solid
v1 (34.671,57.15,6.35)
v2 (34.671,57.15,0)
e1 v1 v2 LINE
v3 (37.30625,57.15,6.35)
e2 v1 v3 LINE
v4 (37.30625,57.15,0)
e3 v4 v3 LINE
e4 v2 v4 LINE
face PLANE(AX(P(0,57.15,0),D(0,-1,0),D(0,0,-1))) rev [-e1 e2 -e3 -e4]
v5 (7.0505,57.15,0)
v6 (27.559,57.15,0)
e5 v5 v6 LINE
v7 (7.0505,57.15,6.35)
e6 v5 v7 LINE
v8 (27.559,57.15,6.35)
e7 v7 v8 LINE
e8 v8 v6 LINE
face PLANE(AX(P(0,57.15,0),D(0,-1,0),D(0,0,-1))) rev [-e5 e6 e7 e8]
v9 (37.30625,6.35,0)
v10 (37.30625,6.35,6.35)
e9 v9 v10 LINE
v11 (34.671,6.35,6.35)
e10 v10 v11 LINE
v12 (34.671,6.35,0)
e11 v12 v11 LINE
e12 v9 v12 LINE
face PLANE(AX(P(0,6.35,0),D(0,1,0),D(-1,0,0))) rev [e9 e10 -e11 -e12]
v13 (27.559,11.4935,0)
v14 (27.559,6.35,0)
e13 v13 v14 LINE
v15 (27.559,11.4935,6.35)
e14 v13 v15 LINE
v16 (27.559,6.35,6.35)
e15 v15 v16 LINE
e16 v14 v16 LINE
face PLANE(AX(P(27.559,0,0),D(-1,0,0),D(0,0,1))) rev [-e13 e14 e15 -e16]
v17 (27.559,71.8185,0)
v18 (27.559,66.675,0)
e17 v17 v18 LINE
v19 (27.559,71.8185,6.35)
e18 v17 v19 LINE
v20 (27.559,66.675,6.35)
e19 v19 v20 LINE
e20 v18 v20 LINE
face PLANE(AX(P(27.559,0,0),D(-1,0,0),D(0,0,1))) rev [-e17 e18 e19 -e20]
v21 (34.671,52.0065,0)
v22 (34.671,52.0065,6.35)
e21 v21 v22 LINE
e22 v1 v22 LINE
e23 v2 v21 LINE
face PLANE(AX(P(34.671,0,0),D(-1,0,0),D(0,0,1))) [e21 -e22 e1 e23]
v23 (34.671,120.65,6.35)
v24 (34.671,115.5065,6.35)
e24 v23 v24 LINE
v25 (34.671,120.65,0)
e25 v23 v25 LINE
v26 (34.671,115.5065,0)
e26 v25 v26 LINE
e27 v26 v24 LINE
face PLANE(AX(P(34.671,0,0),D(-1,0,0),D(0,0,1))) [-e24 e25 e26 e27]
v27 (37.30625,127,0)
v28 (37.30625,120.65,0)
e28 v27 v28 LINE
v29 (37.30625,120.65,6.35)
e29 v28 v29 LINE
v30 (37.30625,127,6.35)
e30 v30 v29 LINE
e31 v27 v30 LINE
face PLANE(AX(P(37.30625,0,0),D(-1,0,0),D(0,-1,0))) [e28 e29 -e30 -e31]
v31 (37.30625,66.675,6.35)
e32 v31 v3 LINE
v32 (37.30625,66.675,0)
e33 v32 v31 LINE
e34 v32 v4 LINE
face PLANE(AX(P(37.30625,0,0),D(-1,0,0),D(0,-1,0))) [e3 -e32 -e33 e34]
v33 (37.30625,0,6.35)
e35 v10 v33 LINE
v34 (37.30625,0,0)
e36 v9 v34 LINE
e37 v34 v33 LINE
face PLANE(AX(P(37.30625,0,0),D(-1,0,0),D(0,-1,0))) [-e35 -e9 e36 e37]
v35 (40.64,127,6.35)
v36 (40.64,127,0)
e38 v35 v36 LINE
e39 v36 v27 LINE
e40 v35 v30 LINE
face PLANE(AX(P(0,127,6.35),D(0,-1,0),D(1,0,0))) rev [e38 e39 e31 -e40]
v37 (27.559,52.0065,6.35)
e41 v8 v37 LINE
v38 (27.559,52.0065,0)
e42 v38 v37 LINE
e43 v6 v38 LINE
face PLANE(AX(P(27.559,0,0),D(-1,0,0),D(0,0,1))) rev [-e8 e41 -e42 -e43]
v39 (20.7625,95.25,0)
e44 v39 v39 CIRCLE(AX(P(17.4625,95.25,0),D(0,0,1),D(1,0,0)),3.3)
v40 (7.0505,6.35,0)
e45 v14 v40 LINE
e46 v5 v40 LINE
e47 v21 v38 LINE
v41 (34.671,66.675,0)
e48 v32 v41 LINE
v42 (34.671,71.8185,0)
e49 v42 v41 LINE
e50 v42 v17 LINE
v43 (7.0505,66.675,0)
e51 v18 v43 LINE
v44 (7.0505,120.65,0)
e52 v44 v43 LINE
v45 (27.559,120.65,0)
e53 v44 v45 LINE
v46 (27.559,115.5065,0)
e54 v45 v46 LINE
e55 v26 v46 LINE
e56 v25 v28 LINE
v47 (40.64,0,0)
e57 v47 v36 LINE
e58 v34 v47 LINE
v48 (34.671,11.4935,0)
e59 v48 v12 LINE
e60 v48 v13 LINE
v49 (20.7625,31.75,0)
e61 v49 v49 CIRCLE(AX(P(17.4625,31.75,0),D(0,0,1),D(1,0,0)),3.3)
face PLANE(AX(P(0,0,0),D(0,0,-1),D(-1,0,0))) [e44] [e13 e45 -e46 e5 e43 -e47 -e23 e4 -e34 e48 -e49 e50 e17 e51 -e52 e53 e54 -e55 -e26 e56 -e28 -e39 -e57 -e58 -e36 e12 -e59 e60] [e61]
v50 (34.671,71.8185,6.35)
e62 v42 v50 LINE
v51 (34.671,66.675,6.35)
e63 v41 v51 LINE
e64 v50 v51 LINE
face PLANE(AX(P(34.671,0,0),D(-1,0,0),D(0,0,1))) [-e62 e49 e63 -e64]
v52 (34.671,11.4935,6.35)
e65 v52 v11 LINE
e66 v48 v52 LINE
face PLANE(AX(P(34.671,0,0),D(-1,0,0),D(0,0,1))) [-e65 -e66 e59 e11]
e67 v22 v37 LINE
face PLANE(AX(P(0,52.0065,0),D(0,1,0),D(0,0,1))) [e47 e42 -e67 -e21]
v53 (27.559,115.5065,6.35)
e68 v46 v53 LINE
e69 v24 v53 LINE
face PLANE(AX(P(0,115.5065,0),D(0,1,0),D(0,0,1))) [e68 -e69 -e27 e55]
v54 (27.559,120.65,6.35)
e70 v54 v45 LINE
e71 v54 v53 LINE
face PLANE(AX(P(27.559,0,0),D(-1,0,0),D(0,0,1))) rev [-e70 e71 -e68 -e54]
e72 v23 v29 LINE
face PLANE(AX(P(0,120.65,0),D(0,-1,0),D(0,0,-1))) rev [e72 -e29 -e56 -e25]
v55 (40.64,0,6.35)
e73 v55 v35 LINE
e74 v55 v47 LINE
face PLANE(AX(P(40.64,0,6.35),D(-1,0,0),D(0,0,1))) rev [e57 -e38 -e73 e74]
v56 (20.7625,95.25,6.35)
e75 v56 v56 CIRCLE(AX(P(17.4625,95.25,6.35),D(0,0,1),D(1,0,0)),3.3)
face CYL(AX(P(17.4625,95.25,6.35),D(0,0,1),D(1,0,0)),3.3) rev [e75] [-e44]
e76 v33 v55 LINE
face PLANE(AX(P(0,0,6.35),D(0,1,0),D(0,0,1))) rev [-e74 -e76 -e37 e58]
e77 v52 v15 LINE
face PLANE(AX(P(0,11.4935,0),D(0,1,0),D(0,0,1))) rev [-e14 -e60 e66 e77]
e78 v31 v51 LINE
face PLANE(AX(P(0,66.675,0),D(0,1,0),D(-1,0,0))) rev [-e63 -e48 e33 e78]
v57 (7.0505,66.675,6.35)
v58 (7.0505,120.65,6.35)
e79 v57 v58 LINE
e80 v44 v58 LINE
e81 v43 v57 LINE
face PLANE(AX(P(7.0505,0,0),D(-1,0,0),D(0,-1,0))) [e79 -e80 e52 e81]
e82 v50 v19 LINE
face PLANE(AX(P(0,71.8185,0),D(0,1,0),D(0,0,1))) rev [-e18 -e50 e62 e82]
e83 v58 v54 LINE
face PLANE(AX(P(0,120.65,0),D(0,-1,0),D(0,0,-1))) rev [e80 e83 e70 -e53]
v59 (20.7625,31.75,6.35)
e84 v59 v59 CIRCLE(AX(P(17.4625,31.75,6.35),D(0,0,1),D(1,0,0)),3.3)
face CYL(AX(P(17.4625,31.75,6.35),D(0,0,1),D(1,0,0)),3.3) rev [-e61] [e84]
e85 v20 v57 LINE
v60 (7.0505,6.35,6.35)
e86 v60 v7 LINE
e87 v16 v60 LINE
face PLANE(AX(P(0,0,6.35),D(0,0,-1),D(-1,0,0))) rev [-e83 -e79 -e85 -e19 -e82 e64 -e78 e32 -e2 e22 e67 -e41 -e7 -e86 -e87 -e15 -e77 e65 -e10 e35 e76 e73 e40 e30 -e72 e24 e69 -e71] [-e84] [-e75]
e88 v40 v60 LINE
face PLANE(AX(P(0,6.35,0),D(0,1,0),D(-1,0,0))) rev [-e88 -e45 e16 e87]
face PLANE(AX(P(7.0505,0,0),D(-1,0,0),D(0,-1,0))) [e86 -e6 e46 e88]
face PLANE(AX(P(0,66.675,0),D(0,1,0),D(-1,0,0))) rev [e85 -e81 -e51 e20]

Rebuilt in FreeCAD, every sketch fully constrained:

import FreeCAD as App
import Part
import Sketcher

V = App.Vector
Q = App.Units.Quantity

doc = App.newDocument("Part")
body = doc.addObject("PartDesign::Body", "Body")

# Sketch on XY plane
sketch1 = body.newObject("Sketcher::SketchObject", "Sketch")
sketch1.AttachmentSupport = (doc.getObject("XY_Plane"), [""])
sketch1.MapMode = "FlatFace"
sketch1.addGeometry([
    Part.LineSegment(V(0, 127, 0), V(0, 0, 0)),
    Part.LineSegment(V(0, 0, 0), V(40.64, 0, 0)),
    Part.LineSegment(V(40.64, 0, 0), V(40.64, 127, 0)),
    Part.LineSegment(V(40.64, 127, 0), V(0, 127, 0)),
], False)
sketch1.addConstraint([
    Sketcher.Constraint("Coincident", 0, 2, 1, 1),
    Sketcher.Constraint("Coincident", 1, 2, 2, 1),
    Sketcher.Constraint("Coincident", 2, 2, 3, 1),
    Sketcher.Constraint("Coincident", 3, 2, 0, 1),
    Sketcher.Constraint("Vertical", 0),
    Sketcher.Constraint("Horizontal", 1),
    Sketcher.Constraint("Vertical", 2),
    Sketcher.Constraint("Horizontal", 3),
    Sketcher.Constraint("Coincident", 0, 2, -1, 1),
    Sketcher.Constraint("DistanceY", 0, 2, 0, 1, Q("5 in")),
    Sketcher.Constraint("DistanceX", 1, 1, 1, 2, Q("1.6 in")),
])
pad1 = body.newObject("PartDesign::Pad", "Pad")
pad1.Profile = sketch1
pad1.Length = Q("0.25 in")

# Sketch on XY plane
sketch2 = body.newObject("Sketcher::SketchObject", "Sketch001")
sketch2.AttachmentSupport = (doc.getObject("XY_Plane"), [""])
sketch2.MapMode = "FlatFace"
sketch2.AttachmentOffset = App.Placement(V(0, 0, 0.25 * 25.4), App.Rotation())
sketch2.addGeometry([
    Part.Circle(V(17.4625, 31.75, 0), V(0, 0, 1), 3.3),
    Part.Circle(V(17.4625, 95.25, 0), V(0, 0, 1), 3.3),
], False)
sketch2.addConstraint([
    Sketcher.Constraint("Equal", 0, 1),
    Sketcher.Constraint("Vertical", 0, 3, 1, 3),
    Sketcher.Constraint("DistanceY", 0, 3, 1, 3, Q("2.5 in")),
    Sketcher.Constraint("Diameter", 0, 6.6),
    Sketcher.Constraint("DistanceY", -1, 1, 0, 3, Q("1.25 in")),
    Sketcher.Constraint("DistanceX", -1, 1, 0, 3, Q("0.6875 in")),
])
doc.recompute()
hole = body.newObject("PartDesign::Hole", "Hole")
hole.Profile = sketch2
hole.ThreadType = "None"
hole.Diameter = 6.6
hole.DepthType = "ThroughAll"

# Sketch on XY plane
sketch3 = body.newObject("Sketcher::SketchObject", "Sketch002")
sketch3.AttachmentSupport = (doc.getObject("XY_Plane"), [""])
sketch3.MapMode = "FlatFace"
sketch3.AttachmentOffset = App.Placement(V(0, 0, 0.25 * 25.4), App.Rotation())
sketch3.addGeometry([
    Part.LineSegment(V(0, 127, 0), V(0, 0, 0)),
    Part.LineSegment(V(0, 0, 0), V(7.0505, 0, 0)),
    Part.LineSegment(V(7.0505, 0, 0), V(7.0505, 127, 0)),
    Part.LineSegment(V(7.0505, 127, 0), V(0, 127, 0)),
], False)
sketch3.addConstraint([
    Sketcher.Constraint("Coincident", 0, 2, 1, 1),
    Sketcher.Constraint("Coincident", 1, 2, 2, 1),
    Sketcher.Constraint("Coincident", 2, 2, 3, 1),
    Sketcher.Constraint("Coincident", 3, 2, 0, 1),
    Sketcher.Constraint("Vertical", 0),
    Sketcher.Constraint("Horizontal", 1),
    Sketcher.Constraint("Vertical", 2),
    Sketcher.Constraint("Horizontal", 3),
    Sketcher.Constraint("Coincident", 0, 2, -1, 1),
    Sketcher.Constraint("DistanceY", 0, 2, 0, 1, Q("5 in")),
    Sketcher.Constraint("DistanceX", 1, 1, 1, 2, 7.0505),
])
pocket1 = body.newObject("PartDesign::Pocket", "Pocket")
pocket1.Profile = sketch3
pocket1.Type = "ThroughAll"
pocket1.Midplane = True

# Sketch on XY plane
sketch4 = body.newObject("Sketcher::SketchObject", "Sketch003")
sketch4.AttachmentSupport = (doc.getObject("XY_Plane"), [""])
sketch4.MapMode = "FlatFace"
sketch4.AttachmentOffset = App.Placement(V(0, 0, 0.25 * 25.4), App.Rotation())
sketch4.addGeometry([
    Part.LineSegment(V(7.0505, 120.65, 0), V(37.30625, 120.65, 0)),  # 0
    Part.LineSegment(V(37.30625, 120.65, 0), V(37.30625, 127, 0)),  # 1
    Part.LineSegment(V(37.30625, 127, 0), V(7.0505, 127, 0)),  # 2
    Part.LineSegment(V(7.0505, 127, 0), V(7.0505, 120.65, 0)),  # 3
    Part.LineSegment(V(37.30625, 66.675, 0), V(7.0505, 66.675, 0)),  # 4
    Part.LineSegment(V(7.0505, 66.675, 0), V(7.0505, 57.15, 0)),  # 5
    Part.LineSegment(V(7.0505, 57.15, 0), V(37.30625, 57.15, 0)),  # 6
    Part.LineSegment(V(37.30625, 57.15, 0), V(37.30625, 66.675, 0)),  # 7
    Part.LineSegment(V(37.30625, 0, 0), V(37.30625, 6.35, 0)),  # 8
    Part.LineSegment(V(37.30625, 6.35, 0), V(7.0505, 6.35, 0)),  # 9
    Part.LineSegment(V(7.0505, 6.35, 0), V(7.0505, 0, 0)),  # 10
    Part.LineSegment(V(7.0505, 0, 0), V(37.30625, 0, 0)),  # 11
], False)
sketch4.addConstraint([
    Sketcher.Constraint("Coincident", 0, 2, 1, 1),
    Sketcher.Constraint("Coincident", 1, 2, 2, 1),
    Sketcher.Constraint("Coincident", 2, 2, 3, 1),
    Sketcher.Constraint("Coincident", 3, 2, 0, 1),
    Sketcher.Constraint("Coincident", 4, 2, 5, 1),
    Sketcher.Constraint("Coincident", 5, 2, 6, 1),
    Sketcher.Constraint("Coincident", 6, 2, 7, 1),
    Sketcher.Constraint("Coincident", 7, 2, 4, 1),
    Sketcher.Constraint("Coincident", 8, 2, 9, 1),
    Sketcher.Constraint("Coincident", 9, 2, 10, 1),
    Sketcher.Constraint("Coincident", 10, 2, 11, 1),
    Sketcher.Constraint("Coincident", 11, 2, 8, 1),
    Sketcher.Constraint("Horizontal", 0),
    Sketcher.Constraint("Vertical", 1),
    Sketcher.Constraint("Horizontal", 2),
    Sketcher.Constraint("Vertical", 3),
    Sketcher.Constraint("Horizontal", 4),
    Sketcher.Constraint("Vertical", 5),
    Sketcher.Constraint("Horizontal", 6),
    Sketcher.Constraint("Vertical", 7),
    Sketcher.Constraint("Vertical", 8),
    Sketcher.Constraint("Horizontal", 9),
    Sketcher.Constraint("Vertical", 10),
    Sketcher.Constraint("Horizontal", 11),
    Sketcher.Constraint("PointOnObject", 10, 2, -1),
    Sketcher.Constraint("Vertical", 3, 2, 4, 2),
    Sketcher.Constraint("Vertical", 1, 2, 6, 2),
    Sketcher.Constraint("Vertical", 7, 2, 8, 2),
    Sketcher.Constraint("Vertical", 5, 2, 9, 2),
    Sketcher.Constraint("Equal", 3, 8),
    Sketcher.Constraint("DistanceY", -1, 1, 1, 2, Q("5 in")),
    Sketcher.Constraint("DistanceY", 8, 2, 6, 2, Q("2 in")),
    Sketcher.Constraint("DistanceY", 1, 1, 1, 2, Q("0.25 in")),
    Sketcher.Constraint("DistanceY", 5, 2, 5, 1, Q("0.375 in")),
    Sketcher.Constraint("DistanceX", -1, 1, 0, 2, Q("1.46875 in")),
    Sketcher.Constraint("DistanceX", 0, 1, 0, 2, 30.25575),
])
pocket2 = body.newObject("PartDesign::Pocket", "Pocket001")
pocket2.Profile = sketch4
pocket2.Type = "ThroughAll"

# Sketch on XY plane
sketch5 = body.newObject("Sketcher::SketchObject", "Sketch004")
sketch5.AttachmentSupport = (doc.getObject("XY_Plane"), [""])
sketch5.MapMode = "FlatFace"
sketch5.AttachmentOffset = App.Placement(V(0, 0, 0.25 * 25.4), App.Rotation())
sketch5.addGeometry([
    Part.LineSegment(V(34.671, 11.4935, 0), V(27.559, 11.4935, 0)),  # 0
    Part.LineSegment(V(27.559, 11.4935, 0), V(27.559, 5.969, 0)),  # 1
    Part.LineSegment(V(27.559, 5.969, 0), V(34.671, 5.969, 0)),  # 2
    Part.LineSegment(V(34.671, 5.969, 0), V(34.671, 11.4935, 0)),  # 3
    Part.LineSegment(V(27.559, 52.0065, 0), V(34.671, 52.0065, 0)),  # 4
    Part.LineSegment(V(34.671, 52.0065, 0), V(34.671, 57.531, 0)),  # 5
    Part.LineSegment(V(34.671, 57.531, 0), V(27.559, 57.531, 0)),  # 6
    Part.LineSegment(V(27.559, 57.531, 0), V(27.559, 52.0065, 0)),  # 7
    Part.LineSegment(V(27.559, 66.294, 0), V(34.671, 66.294, 0)),  # 8
    Part.LineSegment(V(34.671, 66.294, 0), V(34.671, 71.8185, 0)),  # 9
    Part.LineSegment(V(34.671, 71.8185, 0), V(27.559, 71.8185, 0)),  # 10
    Part.LineSegment(V(27.559, 71.8185, 0), V(27.559, 66.294, 0)),  # 11
    Part.LineSegment(V(27.559, 115.5065, 0), V(34.671, 115.5065, 0)),  # 12
    Part.LineSegment(V(34.671, 115.5065, 0), V(34.671, 121.031, 0)),  # 13
    Part.LineSegment(V(34.671, 121.031, 0), V(27.559, 121.031, 0)),  # 14
    Part.LineSegment(V(27.559, 121.031, 0), V(27.559, 115.5065, 0)),  # 15
], False)
sketch5.addConstraint([
    Sketcher.Constraint("Coincident", 0, 2, 1, 1),
    Sketcher.Constraint("Coincident", 1, 2, 2, 1),
    Sketcher.Constraint("Coincident", 2, 2, 3, 1),
    Sketcher.Constraint("Coincident", 3, 2, 0, 1),
    Sketcher.Constraint("Coincident", 4, 2, 5, 1),
    Sketcher.Constraint("Coincident", 5, 2, 6, 1),
    Sketcher.Constraint("Coincident", 6, 2, 7, 1),
    Sketcher.Constraint("Coincident", 7, 2, 4, 1),
    Sketcher.Constraint("Coincident", 8, 2, 9, 1),
    Sketcher.Constraint("Coincident", 9, 2, 10, 1),
    Sketcher.Constraint("Coincident", 10, 2, 11, 1),
    Sketcher.Constraint("Coincident", 11, 2, 8, 1),
    Sketcher.Constraint("Coincident", 12, 2, 13, 1),
    Sketcher.Constraint("Coincident", 13, 2, 14, 1),
    Sketcher.Constraint("Coincident", 14, 2, 15, 1),
    Sketcher.Constraint("Coincident", 15, 2, 12, 1),
    Sketcher.Constraint("Horizontal", 0),
    Sketcher.Constraint("Vertical", 1),
    Sketcher.Constraint("Horizontal", 2),
    Sketcher.Constraint("Vertical", 3),
    Sketcher.Constraint("Horizontal", 4),
    Sketcher.Constraint("Vertical", 5),
    Sketcher.Constraint("Horizontal", 6),
    Sketcher.Constraint("Vertical", 7),
    Sketcher.Constraint("Horizontal", 8),
    Sketcher.Constraint("Vertical", 9),
    Sketcher.Constraint("Horizontal", 10),
    Sketcher.Constraint("Vertical", 11),
    Sketcher.Constraint("Horizontal", 12),
    Sketcher.Constraint("Vertical", 13),
    Sketcher.Constraint("Horizontal", 14),
    Sketcher.Constraint("Vertical", 15),
    Sketcher.Constraint("Vertical", 3, 2, 4, 2),
    Sketcher.Constraint("Vertical", 1, 2, 6, 2),
    Sketcher.Constraint("Vertical", 5, 2, 8, 2),
    Sketcher.Constraint("Vertical", 7, 2, 10, 2),
    Sketcher.Constraint("Vertical", 9, 2, 12, 2),
    Sketcher.Constraint("Vertical", 11, 2, 14, 2),
    Sketcher.Constraint("Equal", 3, 5),
    Sketcher.Constraint("Equal", 7, 9),
    Sketcher.Constraint("Equal", 11, 13),
    Sketcher.Constraint("DistanceX", 0, 2, 0, 1, Q("0.28 in")),
    Sketcher.Constraint("DistanceY", -1, 1, 8, 2, Q("2.61 in")),
    Sketcher.Constraint("DistanceY", 2, 2, 5, 2, Q("2.03 in")),
    Sketcher.Constraint("DistanceY", 4, 2, 9, 2, Q("0.78 in")),
    Sketcher.Constraint("DistanceY", 9, 2, 12, 2, Q("1.72 in")),
    Sketcher.Constraint("DistanceY", 1, 2, 1, 1, Q("0.2175 in")),
    Sketcher.Constraint("DistanceX", -1, 1, 0, 2, Q("1.085 in")),
])
pocket3 = body.newObject("PartDesign::Pocket", "Pocket002")
pocket3.Profile = sketch5
pocket3.Type = "ThroughAll"

doc.recompute()
